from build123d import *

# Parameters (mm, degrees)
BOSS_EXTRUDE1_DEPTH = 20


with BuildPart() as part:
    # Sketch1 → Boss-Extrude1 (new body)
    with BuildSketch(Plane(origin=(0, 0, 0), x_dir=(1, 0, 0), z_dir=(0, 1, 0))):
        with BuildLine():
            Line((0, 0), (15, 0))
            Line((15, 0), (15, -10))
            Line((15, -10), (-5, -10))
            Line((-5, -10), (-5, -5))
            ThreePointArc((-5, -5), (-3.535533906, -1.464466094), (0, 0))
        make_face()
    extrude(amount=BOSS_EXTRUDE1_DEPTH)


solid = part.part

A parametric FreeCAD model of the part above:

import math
import FreeCAD as App
import Part
import Sketcher
from FreeCAD import Vector
Q = App.Units.Quantity

doc = App.newDocument("Part")
params = doc.addObject("Spreadsheet::Sheet", "Params")
for row, (alias, value) in enumerate([
    ("sketch1_radius", "5 mm"),
    ("sketch1_width", "15 mm"),
    ("sketch1_height", "5 mm"),
    ("pad1_length", "20 mm"),
], start=1):
    params.set(f"A{row}", alias)
    params.set(f"B{row}", "=" + value)
    params.setAlias(f"B{row}", alias)

body = doc.addObject("PartDesign::Body", "Body")

# Sketch on XZ plane
sketch1 = doc.addObject("Sketcher::SketchObject", "Sketch")
body.addObject(sketch1)
sketch1.AttachmentSupport = (doc.XZ_Plane, [""])
sketch1.MapMode = "FlatFace"
sketch1.addGeometry([
    Part.LineSegment(Vector(15, 0, 0), Vector(0, 0, 0)),  # 0
    Part.ArcOfCircle(Part.Circle(Vector(0, 5, 0), Vector(0, 0, 1), 5), math.radians(180), math.radians(270)),  # 1
    Part.LineSegment(Vector(-5, 5, 0), Vector(-5, 10, 0)),  # 2
    Part.LineSegment(Vector(-5, 10, 0), Vector(15, 10, 0)),  # 3
    Part.LineSegment(Vector(15, 10, 0), Vector(15, 0, 0)),  # 4
], False)
sketch1.addConstraint([
    Sketcher.Constraint("Tangent", 0, 2, 1, 2),
    Sketcher.Constraint("Tangent", 1, 1, 2, 1),
    Sketcher.Constraint("Coincident", 2, 2, 3, 1),
    Sketcher.Constraint("Coincident", 3, 2, 4, 1),
    Sketcher.Constraint("Coincident", 4, 2, 0, 1),
    Sketcher.Constraint("Horizontal", 0),
    Sketcher.Constraint("Vertical", 2),
    Sketcher.Constraint("Horizontal", 3),
    Sketcher.Constraint("Vertical", 4),
    Sketcher.Constraint("Coincident", 0, 2, -1, 1),
    Sketcher.Constraint("Radius", 1, Q("5 mm")),
    Sketcher.Constraint("DistanceX", 0, 2, 0, 1, Q("15 mm")),
    Sketcher.Constraint("DistanceY", 2, 1, 2, 2, Q("5 mm")),
])
sketch1.setExpression("Constraints[10]", "Params.sketch1_radius")
sketch1.setExpression("Constraints[11]", "Params.sketch1_width")
sketch1.setExpression("Constraints[12]", "Params.sketch1_height")
pad1 = doc.addObject("PartDesign::Pad", "Pad")
body.addObject(pad1)
pad1.Profile = sketch1
pad1.setExpression("Length", "Params.pad1_length")
pad1.Reversed = True

doc.recompute()
